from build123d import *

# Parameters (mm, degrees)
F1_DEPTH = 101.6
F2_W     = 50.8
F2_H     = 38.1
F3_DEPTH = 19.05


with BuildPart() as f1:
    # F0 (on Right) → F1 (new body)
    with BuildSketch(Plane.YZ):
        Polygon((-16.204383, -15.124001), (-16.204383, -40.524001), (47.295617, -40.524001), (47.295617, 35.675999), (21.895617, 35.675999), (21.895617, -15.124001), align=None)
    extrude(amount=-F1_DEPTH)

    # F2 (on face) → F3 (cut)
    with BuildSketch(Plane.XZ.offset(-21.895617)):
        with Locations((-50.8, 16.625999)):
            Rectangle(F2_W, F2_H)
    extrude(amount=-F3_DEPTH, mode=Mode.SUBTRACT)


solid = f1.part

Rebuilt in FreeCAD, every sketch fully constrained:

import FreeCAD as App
import Part
import Sketcher

V = App.Vector
Q = App.Units.Quantity


def add_polygon(sketch, points):
    """Adds a closed chain of lines whose ends are joined by coincident constraints."""
    first, n = sketch.GeometryCount, len(points)
    for a, b in zip(points, points[1:] + points[:1]):
        sketch.addGeometry(Part.LineSegment(App.Vector(*a, 0), App.Vector(*b, 0)), False)
    for i in range(n):
        sketch.addConstraint(Sketcher.Constraint("Coincident", first + i, 2, first + (i + 1) % n, 1))

doc = App.newDocument("Part")
body = doc.addObject("PartDesign::Body", "Body")

sketch1 = doc.addObject("Sketcher::SketchObject", "Sketch")
body.addObject(sketch1)
sketch1.AttachmentSupport = (doc.YZ_Plane, [""])
sketch1.MapMode = "FlatFace"
add_polygon(sketch1, [(-16.204383, -15.124001), (-16.204383, -40.524001), (47.295617, -40.524001), (47.295617, 35.675999), (21.895617, 35.675999), (21.895617, -15.124001)])
sketch1.addConstraint([
    Sketcher.Constraint("Vertical", 0),
    Sketcher.Constraint("Horizontal", 1),
    Sketcher.Constraint("Vertical", 2),
    Sketcher.Constraint("Horizontal", 3),
    Sketcher.Constraint("Vertical", 4),
    Sketcher.Constraint("Horizontal", 5),
    Sketcher.Constraint("Equal", 3, 0),
    Sketcher.Constraint("DistanceX", 3, 2, 3, 1, Q("1 in")),
    Sketcher.Constraint("DistanceY", 2, 1, 2, 2, Q("3 in")),
    Sketcher.Constraint("DistanceX", 1, 1, 1, 2, Q("2.5 in")),
    Sketcher.Constraint("DistanceY", 0, 2, -1, 1, 40.524001),
    Sketcher.Constraint("DistanceX", 0, 2, -1, 1, 16.204383),
])
pad1 = doc.addObject("PartDesign::Pad", "Pad")
body.addObject(pad1)
pad1.Profile = sketch1
pad1.Length = Q("4 in")
pad1.Reversed = True

sketch2 = doc.addObject("Sketcher::SketchObject", "Sketch001")
body.addObject(sketch2)
sketch2.AttachmentSupport = (doc.XZ_Plane, [""])
sketch2.MapMode = "FlatFace"
sketch2.AttachmentOffset = App.Placement(V(0, 0, -21.895617), App.Rotation())
add_polygon(sketch2, [(-76.2, 35.675999), (-76.2, -2.424001), (-25.4, -2.424001), (-25.4, 35.675999)])
sketch2.addConstraint([
    Sketcher.Constraint("Vertical", 0),
    Sketcher.Constraint("Horizontal", 1),
    Sketcher.Constraint("Vertical", 2),
    Sketcher.Constraint("Horizontal", 3),
    Sketcher.Constraint("DistanceX", 1, 1, 1, 2, Q("2 in")),
    Sketcher.Constraint("DistanceY", 0, 2, 0, 1, Q("1.5 in")),
    Sketcher.Constraint("DistanceX", 0, 2, -1, 1, Q("3 in")),
    Sketcher.Constraint("DistanceY", 0, 2, -1, 1, 2.424001),
])
pocket1 = doc.addObject("PartDesign::Pocket", "Pocket")
body.addObject(pocket1)
pocket1.Profile = sketch2
pocket1.Length = Q("0.75 in")

doc.recompute()
